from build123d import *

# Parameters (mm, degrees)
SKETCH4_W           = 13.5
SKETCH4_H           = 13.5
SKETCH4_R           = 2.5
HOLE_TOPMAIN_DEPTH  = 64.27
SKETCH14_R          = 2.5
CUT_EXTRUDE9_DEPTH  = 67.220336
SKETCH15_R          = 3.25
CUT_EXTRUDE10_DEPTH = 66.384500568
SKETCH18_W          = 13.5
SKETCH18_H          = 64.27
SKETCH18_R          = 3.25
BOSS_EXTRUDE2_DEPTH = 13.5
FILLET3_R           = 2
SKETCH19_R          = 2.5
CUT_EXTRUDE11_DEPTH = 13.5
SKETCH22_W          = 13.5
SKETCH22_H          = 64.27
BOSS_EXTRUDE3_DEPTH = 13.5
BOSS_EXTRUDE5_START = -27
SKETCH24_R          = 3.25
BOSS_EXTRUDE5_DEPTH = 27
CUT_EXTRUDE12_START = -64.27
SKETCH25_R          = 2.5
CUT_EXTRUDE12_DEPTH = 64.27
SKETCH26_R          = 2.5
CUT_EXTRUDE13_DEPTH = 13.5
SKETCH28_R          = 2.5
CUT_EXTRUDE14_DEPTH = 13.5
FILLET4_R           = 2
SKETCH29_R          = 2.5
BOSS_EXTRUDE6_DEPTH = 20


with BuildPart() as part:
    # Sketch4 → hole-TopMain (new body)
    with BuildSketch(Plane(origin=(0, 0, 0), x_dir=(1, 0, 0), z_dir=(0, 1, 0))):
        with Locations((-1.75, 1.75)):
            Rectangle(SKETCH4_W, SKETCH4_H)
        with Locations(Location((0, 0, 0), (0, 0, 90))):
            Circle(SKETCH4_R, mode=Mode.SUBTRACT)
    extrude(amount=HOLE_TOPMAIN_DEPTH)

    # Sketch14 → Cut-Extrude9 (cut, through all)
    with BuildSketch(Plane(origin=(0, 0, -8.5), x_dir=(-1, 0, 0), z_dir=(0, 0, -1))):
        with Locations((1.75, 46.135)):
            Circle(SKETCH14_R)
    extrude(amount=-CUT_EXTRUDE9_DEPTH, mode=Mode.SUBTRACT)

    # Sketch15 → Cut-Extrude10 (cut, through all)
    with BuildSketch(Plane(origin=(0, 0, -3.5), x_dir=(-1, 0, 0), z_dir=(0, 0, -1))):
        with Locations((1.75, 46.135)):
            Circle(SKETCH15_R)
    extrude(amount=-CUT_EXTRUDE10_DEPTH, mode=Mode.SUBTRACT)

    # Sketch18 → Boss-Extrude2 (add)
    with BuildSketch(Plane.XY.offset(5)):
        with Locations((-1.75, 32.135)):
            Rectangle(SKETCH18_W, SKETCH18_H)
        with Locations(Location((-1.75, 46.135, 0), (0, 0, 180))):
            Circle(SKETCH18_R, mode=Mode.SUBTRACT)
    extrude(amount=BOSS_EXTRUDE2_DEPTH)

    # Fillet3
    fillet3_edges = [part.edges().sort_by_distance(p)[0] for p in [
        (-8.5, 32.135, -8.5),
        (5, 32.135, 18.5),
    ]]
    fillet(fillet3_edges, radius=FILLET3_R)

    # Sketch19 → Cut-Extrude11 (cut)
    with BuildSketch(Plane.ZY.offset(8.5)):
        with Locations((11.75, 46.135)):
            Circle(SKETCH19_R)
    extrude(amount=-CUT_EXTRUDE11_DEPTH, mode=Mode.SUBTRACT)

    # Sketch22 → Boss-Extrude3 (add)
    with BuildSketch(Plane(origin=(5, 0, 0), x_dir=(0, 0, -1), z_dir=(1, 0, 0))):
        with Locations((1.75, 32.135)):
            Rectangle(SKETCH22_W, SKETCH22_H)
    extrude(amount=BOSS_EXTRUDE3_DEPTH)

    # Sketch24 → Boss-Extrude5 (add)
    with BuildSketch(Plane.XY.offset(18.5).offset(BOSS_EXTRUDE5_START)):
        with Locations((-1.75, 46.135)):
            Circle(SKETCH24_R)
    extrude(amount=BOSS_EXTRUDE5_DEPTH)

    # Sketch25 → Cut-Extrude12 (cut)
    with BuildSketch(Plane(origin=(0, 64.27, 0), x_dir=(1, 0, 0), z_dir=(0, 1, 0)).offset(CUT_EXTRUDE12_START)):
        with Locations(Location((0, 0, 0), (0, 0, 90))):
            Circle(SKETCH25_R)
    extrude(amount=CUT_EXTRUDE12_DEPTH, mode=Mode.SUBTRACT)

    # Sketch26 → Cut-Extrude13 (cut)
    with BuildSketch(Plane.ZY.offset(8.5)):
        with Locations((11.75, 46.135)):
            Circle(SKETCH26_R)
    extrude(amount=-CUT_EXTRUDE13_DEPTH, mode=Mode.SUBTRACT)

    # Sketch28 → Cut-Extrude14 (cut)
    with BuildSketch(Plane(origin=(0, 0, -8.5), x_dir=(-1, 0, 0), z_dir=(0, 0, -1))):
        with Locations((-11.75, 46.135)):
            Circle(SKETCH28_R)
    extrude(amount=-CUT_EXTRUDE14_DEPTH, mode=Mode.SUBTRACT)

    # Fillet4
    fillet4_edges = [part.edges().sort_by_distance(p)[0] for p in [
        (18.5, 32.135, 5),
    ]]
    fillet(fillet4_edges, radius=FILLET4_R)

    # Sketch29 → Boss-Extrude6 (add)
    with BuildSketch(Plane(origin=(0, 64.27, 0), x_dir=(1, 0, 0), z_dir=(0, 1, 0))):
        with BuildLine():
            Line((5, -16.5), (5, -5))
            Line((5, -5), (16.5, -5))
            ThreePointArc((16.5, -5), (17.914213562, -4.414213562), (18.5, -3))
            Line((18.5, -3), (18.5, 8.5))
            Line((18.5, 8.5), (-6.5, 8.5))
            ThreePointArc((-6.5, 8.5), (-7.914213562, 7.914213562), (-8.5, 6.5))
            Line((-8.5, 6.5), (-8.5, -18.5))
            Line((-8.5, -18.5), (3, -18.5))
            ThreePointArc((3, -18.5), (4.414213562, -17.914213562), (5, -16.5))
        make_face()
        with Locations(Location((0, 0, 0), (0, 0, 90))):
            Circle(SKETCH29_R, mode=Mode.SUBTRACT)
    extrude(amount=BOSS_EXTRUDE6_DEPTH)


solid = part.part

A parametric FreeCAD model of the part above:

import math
import FreeCAD as App
import Part
import Sketcher
Q = App.Units.Quantity


def edges_at(feature, points):
    """Names of the edges that pass closest to the given points."""
    edges = feature.Shape.Edges
    near = lambda p: min(range(len(edges)), key=lambda i: edges[i].distToShape(Part.Vertex(*p))[0])
    return sorted({f"Edge{near(p) + 1}" for p in points})

doc = App.newDocument("Part")
body = doc.addObject("PartDesign::Body", "Body")

# Sketch on XZ plane
sketch1 = body.newObject("Sketcher::SketchObject", "Sketch")
sketch1.AttachmentSupport = (doc.getObject("XZ_Plane"), [""])
sketch1.MapMode = "FlatFace"
sketch1.addGeometry([
    Part.LineSegment(App.Vector(-8.5, -8.5, 0), App.Vector(-8.5, 5, 0)),  # 0
    Part.LineSegment(App.Vector(-8.5, 5, 0), App.Vector(5, 5, 0)),  # 1
    Part.LineSegment(App.Vector(5, 5, 0), App.Vector(5, -8.5, 0)),  # 2
    Part.LineSegment(App.Vector(5, -8.5, 0), App.Vector(-8.5, -8.5, 0)),  # 3
    Part.Circle(App.Vector(0, 0, 0), App.Vector(0, 0, 1), 2.5),  # 4
], False)
sketch1.addConstraint([
    Sketcher.Constraint("Coincident", 0, 2, 1, 1),
    Sketcher.Constraint("Coincident", 1, 2, 2, 1),
    Sketcher.Constraint("Coincident", 2, 2, 3, 1),
    Sketcher.Constraint("Coincident", 3, 2, 0, 1),
    Sketcher.Constraint("Vertical", 0),
    Sketcher.Constraint("Horizontal", 1),
    Sketcher.Constraint("Vertical", 2),
    Sketcher.Constraint("Horizontal", 3),
    Sketcher.Constraint("Coincident", 4, 3, -1, 1),
    Sketcher.Constraint("Equal", 3, 0),
    Sketcher.Constraint("Diameter", 4, Q("5 mm")),
    Sketcher.Constraint("DistanceX", 1, 1, 1, 2, Q("13.5 mm")),
    Sketcher.Constraint("DistanceY", -1, 1, 0, 2, Q("5 mm")),
    Sketcher.Constraint("DistanceX", -1, 1, 1, 2, Q("5 mm")),
])
pad1 = body.newObject("PartDesign::Pad", "Pad")
pad1.Profile = sketch1
pad1.Length = 64.27
pad1.Reversed = True

# Sketch on XY plane
sketch2 = body.newObject("Sketcher::SketchObject", "Sketch001")
sketch2.AttachmentSupport = (doc.getObject("XY_Plane"), [""])
sketch2.MapMode = "FlatFace"
sketch2.AttachmentOffset = App.Placement(App.Vector(0, 0, -8.5), App.Rotation())
sketch2.addGeometry(Part.Circle(App.Vector(-1.8, 46.1, 0), App.Vector(0, 0, 1), 2.5), False)
sketch2.addConstraint([
    Sketcher.Constraint("Diameter", 0, Q("5 mm")),
    Sketcher.Constraint("DistanceX", 0, 3, -1, 1, Q("1.75 mm")),
    Sketcher.Constraint("DistanceY", -1, 1, 0, 3, Q("46.135 mm")),
])
pocket1 = body.newObject("PartDesign::Pocket", "Pocket")
pocket1.Profile = sketch2
pocket1.Type = "ThroughAll"
pocket1.Reversed = True

# Sketch on XY plane
sketch3 = body.newObject("Sketcher::SketchObject", "Sketch002")
sketch3.AttachmentSupport = (doc.getObject("XY_Plane"), [""])
sketch3.MapMode = "FlatFace"
sketch3.AttachmentOffset = App.Placement(App.Vector(0, 0, -3.5), App.Rotation())
sketch3.addGeometry(Part.Circle(App.Vector(-1.8, 46.1, 0), App.Vector(0, 0, 1), 3.2), False)
sketch3.addConstraint([
    Sketcher.Constraint("Diameter", 0, Q("6.5 mm")),
    Sketcher.Constraint("DistanceX", 0, 3, -1, 1, Q("1.75 mm")),
    Sketcher.Constraint("DistanceY", -1, 1, 0, 3, Q("46.135 mm")),
])
pocket2 = body.newObject("PartDesign::Pocket", "Pocket001")
pocket2.Profile = sketch3
pocket2.Type = "ThroughAll"
pocket2.Reversed = True

# Sketch on XY plane
sketch4 = body.newObject("Sketcher::SketchObject", "Sketch003")
sketch4.AttachmentSupport = (doc.getObject("XY_Plane"), [""])
sketch4.MapMode = "FlatFace"
sketch4.AttachmentOffset = App.Placement(App.Vector(0, 0, 5), App.Rotation())
sketch4.addGeometry([
    Part.LineSegment(App.Vector(-8.5, 64.3, 0), App.Vector(-8.5, 0, 0)),  # 0
    Part.LineSegment(App.Vector(-8.5, 0, 0), App.Vector(5, 0, 0)),  # 1
    Part.LineSegment(App.Vector(5, 0, 0), App.Vector(5, 64.3, 0)),  # 2
    Part.LineSegment(App.Vector(5, 64.3, 0), App.Vector(-8.5, 64.3, 0)),  # 3
    Part.Circle(App.Vector(-1.8, 46.1, 0), App.Vector(0, 0, 1), 3.2),  # 4
], False)
sketch4.addConstraint([
    Sketcher.Constraint("Coincident", 0, 2, 1, 1),
    Sketcher.Constraint("Coincident", 1, 2, 2, 1),
    Sketcher.Constraint("Coincident", 2, 2, 3, 1),
    Sketcher.Constraint("Coincident", 3, 2, 0, 1),
    Sketcher.Constraint("Vertical", 0),
    Sketcher.Constraint("Horizontal", 1),
    Sketcher.Constraint("Vertical", 2),
    Sketcher.Constraint("Horizontal", 3),
    Sketcher.Constraint("PointOnObject", 0, 2, -1),
    Sketcher.Constraint("Diameter", 4, Q("6.5 mm")),
    Sketcher.Constraint("DistanceX", 1, 1, 1, 2, Q("13.5 mm")),
    Sketcher.Constraint("DistanceX", -1, 1, 1, 2, Q("5 mm")),
    Sketcher.Constraint("DistanceY", 0, 2, 0, 1, Q("64.27 mm")),
    Sketcher.Constraint("DistanceX", 4, 3, -1, 1, Q("1.75 mm")),
    Sketcher.Constraint("DistanceY", -1, 1, 4, 3, Q("46.135 mm")),
])
pad2 = body.newObject("PartDesign::Pad", "Pad001")
pad2.Profile = sketch4
pad2.Length = 13.5
doc.recompute()

fillet = body.newObject("PartDesign::Fillet", "Fillet")
fillet.Base = (pad2, edges_at(pad2, [(-8.5, 32.135, -8.5), (5, 32.135, 18.5)]))
fillet.Radius = 2

# Sketch on YZ plane
sketch5 = body.newObject("Sketcher::SketchObject", "Sketch004")
sketch5.AttachmentSupport = (doc.getObject("YZ_Plane"), [""])
sketch5.MapMode = "FlatFace"
sketch5.AttachmentOffset = App.Placement(App.Vector(0, 0, -8.5), App.Rotation())
sketch5.addGeometry(Part.Circle(App.Vector(46.1, 11.8, 0), App.Vector(0, 0, 1), 2.5), False)
sketch5.addConstraint([
    Sketcher.Constraint("Diameter", 0, Q("5 mm")),
    Sketcher.Constraint("DistanceY", -1, 1, 0, 3, Q("11.75 mm")),
    Sketcher.Constraint("DistanceX", -1, 1, 0, 3, Q("46.135 mm")),
])
pocket3 = body.newObject("PartDesign::Pocket", "Pocket002")
pocket3.Profile = sketch5
pocket3.Length = 13.5
pocket3.Reversed = True

# Sketch on YZ plane
sketch6 = body.newObject("Sketcher::SketchObject", "Sketch005")
sketch6.AttachmentSupport = (doc.getObject("YZ_Plane"), [""])
sketch6.MapMode = "FlatFace"
sketch6.AttachmentOffset = App.Placement(App.Vector(0, 0, 5), App.Rotation())
sketch6.addGeometry([
    Part.LineSegment(App.Vector(64, 5, 0), App.Vector(0, 5, 0)),
    Part.LineSegment(App.Vector(0, 5, 0), App.Vector(0, -8, 0)),
    Part.LineSegment(App.Vector(0, -8, 0), App.Vector(64, -8, 0)),
    Part.LineSegment(App.Vector(64, -8, 0), App.Vector(64, 5, 0)),
], False)
sketch6.addConstraint([
    Sketcher.Constraint("Coincident", 0, 2, 1, 1),
    Sketcher.Constraint("Coincident", 1, 2, 2, 1),
    Sketcher.Constraint("Coincident", 2, 2, 3, 1),
    Sketcher.Constraint("Coincident", 3, 2, 0, 1),
    Sketcher.Constraint("Horizontal", 0),
    Sketcher.Constraint("Vertical", 1),
    Sketcher.Constraint("Horizontal", 2),
    Sketcher.Constraint("Vertical", 3),
    Sketcher.Constraint("PointOnObject", 0, 2, -2),
    Sketcher.Constraint("DistanceY", 1, 2, 1, 1, Q("13.5 mm")),
    Sketcher.Constraint("DistanceY", -1, 1, 0, 2, Q("5 mm")),
    Sketcher.Constraint("DistanceX", 0, 2, 0, 1, Q("64.27 mm")),
])
pad3 = body.newObject("PartDesign::Pad", "Pad002")
pad3.Profile = sketch6
pad3.Length = 13.5

# Sketch on XY plane
sketch7 = body.newObject("Sketcher::SketchObject", "Sketch006")
sketch7.AttachmentSupport = (doc.getObject("XY_Plane"), [""])
sketch7.MapMode = "FlatFace"
sketch7.AttachmentOffset = App.Placement(App.Vector(0, 0, -8.5), App.Rotation())
sketch7.addGeometry(Part.Circle(App.Vector(-1.8, 46.1, 0), App.Vector(0, 0, 1), 3.2), False)
sketch7.addConstraint([
    Sketcher.Constraint("Diameter", 0, Q("6.5 mm")),
    Sketcher.Constraint("DistanceX", 0, 3, -1, 1, Q("1.75 mm")),
    Sketcher.Constraint("DistanceY", -1, 1, 0, 3, Q("46.135 mm")),
])
pad4 = body.newObject("PartDesign::Pad", "Pad003")
pad4.Profile = sketch7
pad4.Length = 27

# Sketch on XZ plane
sketch8 = body.newObject("Sketcher::SketchObject", "Sketch007")
sketch8.AttachmentSupport = (doc.getObject("XZ_Plane"), [""])
sketch8.MapMode = "FlatFace"
sketch8.addGeometry(Part.Circle(App.Vector(0, 0, 0), App.Vector(0, 0, 1), 2.5), False)
sketch8.addConstraint([
    Sketcher.Constraint("Coincident", 0, 3, -1, 1),
    Sketcher.Constraint("Diameter", 0, Q("5 mm")),
])
pocket4 = body.newObject("PartDesign::Pocket", "Pocket003")
pocket4.Profile = sketch8
pocket4.Length = 64.27

# Sketch on YZ plane
sketch9 = body.newObject("Sketcher::SketchObject", "Sketch008")
sketch9.AttachmentSupport = (doc.getObject("YZ_Plane"), [""])
sketch9.MapMode = "FlatFace"
sketch9.AttachmentOffset = App.Placement(App.Vector(0, 0, -8.5), App.Rotation())
sketch9.addGeometry(Part.Circle(App.Vector(46.1, 11.8, 0), App.Vector(0, 0, 1), 2.5), False)
sketch9.addConstraint([
    Sketcher.Constraint("Diameter", 0, Q("5 mm")),
    Sketcher.Constraint("DistanceY", -1, 1, 0, 3, Q("11.75 mm")),
    Sketcher.Constraint("DistanceX", -1, 1, 0, 3, Q("46.135 mm")),
])
pocket5 = body.newObject("PartDesign::Pocket", "Pocket004")
pocket5.Profile = sketch9
pocket5.Length = 13.5
pocket5.Reversed = True

# Sketch on XY plane
sketch10 = body.newObject("Sketcher::SketchObject", "Sketch009")
sketch10.AttachmentSupport = (doc.getObject("XY_Plane"), [""])
sketch10.MapMode = "FlatFace"
sketch10.AttachmentOffset = App.Placement(App.Vector(0, 0, -8.5), App.Rotation())
sketch10.addGeometry(Part.Circle(App.Vector(11.8, 46.1, 0), App.Vector(0, 0, 1), 2.5), False)
sketch10.addConstraint([
    Sketcher.Constraint("Diameter", 0, Q("5 mm")),
    Sketcher.Constraint("DistanceX", -1, 1, 0, 3, Q("11.75 mm")),
    Sketcher.Constraint("DistanceY", -1, 1, 0, 3, Q("46.135 mm")),
])
pocket6 = body.newObject("PartDesign::Pocket", "Pocket005")
pocket6.Profile = sketch10
pocket6.Length = 13.5
pocket6.Reversed = True
doc.recompute()

fillet2 = body.newObject("PartDesign::Fillet", "Fillet001")
fillet2.Base = (pocket6, edges_at(pocket6, [(18.5, 32.135, 5)]))
fillet2.Radius = 2

# Sketch on XZ plane
sketch11 = body.newObject("Sketcher::SketchObject", "Sketch010")
sketch11.AttachmentSupport = (doc.getObject("XZ_Plane"), [""])
sketch11.MapMode = "FlatFace"
sketch11.AttachmentOffset = App.Placement(App.Vector(0, 0, -64.27), App.Rotation())
sketch11.addGeometry([
    Part.LineSegment(App.Vector(5, 16.5, 0), App.Vector(5, 5, 0)),  # 0
    Part.LineSegment(App.Vector(5, 5, 0), App.Vector(16.5, 5, 0)),  # 1
    Part.ArcOfCircle(Part.Circle(App.Vector(16.5, 3, 0), App.Vector(0, 0, 1), 2), math.radians(0), math.radians(90)),  # 2
    Part.LineSegment(App.Vector(18.5, 3, 0), App.Vector(18.5, -8.5, 0)),  # 3
    Part.LineSegment(App.Vector(18.5, -8.5, 0), App.Vector(-6.5, -8.5, 0)),  # 4
    Part.ArcOfCircle(Part.Circle(App.Vector(-6.5, -6.5, 0), App.Vector(0, 0, 1), 2), math.radians(-180), math.radians(-90)),  # 5
    Part.LineSegment(App.Vector(-8.5, -6.5, 0), App.Vector(-8.5, 18.5, 0)),  # 6
    Part.LineSegment(App.Vector(-8.5, 18.5, 0), App.Vector(3, 18.5, 0)),  # 7
    Part.ArcOfCircle(Part.Circle(App.Vector(3, 16.5, 0), App.Vector(0, 0, 1), 2), math.radians(0), math.radians(90)),  # 8
    Part.Circle(App.Vector(0, 0, 0), App.Vector(0, 0, 1), 2.5),  # 9
], False)
sketch11.addConstraint([
    Sketcher.Constraint("Coincident", 0, 2, 1, 1),
    Sketcher.Constraint("Tangent", 1, 2, 2, 2),
    Sketcher.Constraint("Tangent", 2, 1, 3, 1),
    Sketcher.Constraint("Coincident", 3, 2, 4, 1),
    Sketcher.Constraint("Tangent", 4, 2, 5, 2),
    Sketcher.Constraint("Tangent", 5, 1, 6, 1),
    Sketcher.Constraint("Coincident", 6, 2, 7, 1),
    Sketcher.Constraint("Tangent", 7, 2, 8, 2),
    Sketcher.Constraint("Tangent", 8, 1, 0, 1),
    Sketcher.Constraint("Vertical", 0),
    Sketcher.Constraint("Horizontal", 1),
    Sketcher.Constraint("Vertical", 3),
    Sketcher.Constraint("Horizontal", 4),
    Sketcher.Constraint("Vertical", 6),
    Sketcher.Constraint("Horizontal", 7),
    Sketcher.Constraint("Coincident", 9, 3, -1, 1),
    Sketcher.Constraint("Equal", 2, 5),
    Sketcher.Constraint("Equal", 5, 8),
    Sketcher.Constraint("Equal", 1, 7),
    Sketcher.Constraint("Equal", 7, 0),
    Sketcher.Constraint("Equal", 0, 3),
    Sketcher.Constraint("Diameter", 9, Q("5 mm")),
    Sketcher.Constraint("Radius", 2, Q("2 mm")),
    Sketcher.Constraint("DistanceX", 4, 2, 4, 1, Q("25 mm")),
    Sketcher.Constraint("DistanceY", -1, 1, 2, 3, Q("3 mm")),
    Sketcher.Constraint("DistanceX", -1, 1, 8, 3, Q("3 mm")),
])
pad5 = body.newObject("PartDesign::Pad", "Pad004")
pad5.Profile = sketch11
pad5.Length = 20
pad5.Reversed = True

doc.recompute()
